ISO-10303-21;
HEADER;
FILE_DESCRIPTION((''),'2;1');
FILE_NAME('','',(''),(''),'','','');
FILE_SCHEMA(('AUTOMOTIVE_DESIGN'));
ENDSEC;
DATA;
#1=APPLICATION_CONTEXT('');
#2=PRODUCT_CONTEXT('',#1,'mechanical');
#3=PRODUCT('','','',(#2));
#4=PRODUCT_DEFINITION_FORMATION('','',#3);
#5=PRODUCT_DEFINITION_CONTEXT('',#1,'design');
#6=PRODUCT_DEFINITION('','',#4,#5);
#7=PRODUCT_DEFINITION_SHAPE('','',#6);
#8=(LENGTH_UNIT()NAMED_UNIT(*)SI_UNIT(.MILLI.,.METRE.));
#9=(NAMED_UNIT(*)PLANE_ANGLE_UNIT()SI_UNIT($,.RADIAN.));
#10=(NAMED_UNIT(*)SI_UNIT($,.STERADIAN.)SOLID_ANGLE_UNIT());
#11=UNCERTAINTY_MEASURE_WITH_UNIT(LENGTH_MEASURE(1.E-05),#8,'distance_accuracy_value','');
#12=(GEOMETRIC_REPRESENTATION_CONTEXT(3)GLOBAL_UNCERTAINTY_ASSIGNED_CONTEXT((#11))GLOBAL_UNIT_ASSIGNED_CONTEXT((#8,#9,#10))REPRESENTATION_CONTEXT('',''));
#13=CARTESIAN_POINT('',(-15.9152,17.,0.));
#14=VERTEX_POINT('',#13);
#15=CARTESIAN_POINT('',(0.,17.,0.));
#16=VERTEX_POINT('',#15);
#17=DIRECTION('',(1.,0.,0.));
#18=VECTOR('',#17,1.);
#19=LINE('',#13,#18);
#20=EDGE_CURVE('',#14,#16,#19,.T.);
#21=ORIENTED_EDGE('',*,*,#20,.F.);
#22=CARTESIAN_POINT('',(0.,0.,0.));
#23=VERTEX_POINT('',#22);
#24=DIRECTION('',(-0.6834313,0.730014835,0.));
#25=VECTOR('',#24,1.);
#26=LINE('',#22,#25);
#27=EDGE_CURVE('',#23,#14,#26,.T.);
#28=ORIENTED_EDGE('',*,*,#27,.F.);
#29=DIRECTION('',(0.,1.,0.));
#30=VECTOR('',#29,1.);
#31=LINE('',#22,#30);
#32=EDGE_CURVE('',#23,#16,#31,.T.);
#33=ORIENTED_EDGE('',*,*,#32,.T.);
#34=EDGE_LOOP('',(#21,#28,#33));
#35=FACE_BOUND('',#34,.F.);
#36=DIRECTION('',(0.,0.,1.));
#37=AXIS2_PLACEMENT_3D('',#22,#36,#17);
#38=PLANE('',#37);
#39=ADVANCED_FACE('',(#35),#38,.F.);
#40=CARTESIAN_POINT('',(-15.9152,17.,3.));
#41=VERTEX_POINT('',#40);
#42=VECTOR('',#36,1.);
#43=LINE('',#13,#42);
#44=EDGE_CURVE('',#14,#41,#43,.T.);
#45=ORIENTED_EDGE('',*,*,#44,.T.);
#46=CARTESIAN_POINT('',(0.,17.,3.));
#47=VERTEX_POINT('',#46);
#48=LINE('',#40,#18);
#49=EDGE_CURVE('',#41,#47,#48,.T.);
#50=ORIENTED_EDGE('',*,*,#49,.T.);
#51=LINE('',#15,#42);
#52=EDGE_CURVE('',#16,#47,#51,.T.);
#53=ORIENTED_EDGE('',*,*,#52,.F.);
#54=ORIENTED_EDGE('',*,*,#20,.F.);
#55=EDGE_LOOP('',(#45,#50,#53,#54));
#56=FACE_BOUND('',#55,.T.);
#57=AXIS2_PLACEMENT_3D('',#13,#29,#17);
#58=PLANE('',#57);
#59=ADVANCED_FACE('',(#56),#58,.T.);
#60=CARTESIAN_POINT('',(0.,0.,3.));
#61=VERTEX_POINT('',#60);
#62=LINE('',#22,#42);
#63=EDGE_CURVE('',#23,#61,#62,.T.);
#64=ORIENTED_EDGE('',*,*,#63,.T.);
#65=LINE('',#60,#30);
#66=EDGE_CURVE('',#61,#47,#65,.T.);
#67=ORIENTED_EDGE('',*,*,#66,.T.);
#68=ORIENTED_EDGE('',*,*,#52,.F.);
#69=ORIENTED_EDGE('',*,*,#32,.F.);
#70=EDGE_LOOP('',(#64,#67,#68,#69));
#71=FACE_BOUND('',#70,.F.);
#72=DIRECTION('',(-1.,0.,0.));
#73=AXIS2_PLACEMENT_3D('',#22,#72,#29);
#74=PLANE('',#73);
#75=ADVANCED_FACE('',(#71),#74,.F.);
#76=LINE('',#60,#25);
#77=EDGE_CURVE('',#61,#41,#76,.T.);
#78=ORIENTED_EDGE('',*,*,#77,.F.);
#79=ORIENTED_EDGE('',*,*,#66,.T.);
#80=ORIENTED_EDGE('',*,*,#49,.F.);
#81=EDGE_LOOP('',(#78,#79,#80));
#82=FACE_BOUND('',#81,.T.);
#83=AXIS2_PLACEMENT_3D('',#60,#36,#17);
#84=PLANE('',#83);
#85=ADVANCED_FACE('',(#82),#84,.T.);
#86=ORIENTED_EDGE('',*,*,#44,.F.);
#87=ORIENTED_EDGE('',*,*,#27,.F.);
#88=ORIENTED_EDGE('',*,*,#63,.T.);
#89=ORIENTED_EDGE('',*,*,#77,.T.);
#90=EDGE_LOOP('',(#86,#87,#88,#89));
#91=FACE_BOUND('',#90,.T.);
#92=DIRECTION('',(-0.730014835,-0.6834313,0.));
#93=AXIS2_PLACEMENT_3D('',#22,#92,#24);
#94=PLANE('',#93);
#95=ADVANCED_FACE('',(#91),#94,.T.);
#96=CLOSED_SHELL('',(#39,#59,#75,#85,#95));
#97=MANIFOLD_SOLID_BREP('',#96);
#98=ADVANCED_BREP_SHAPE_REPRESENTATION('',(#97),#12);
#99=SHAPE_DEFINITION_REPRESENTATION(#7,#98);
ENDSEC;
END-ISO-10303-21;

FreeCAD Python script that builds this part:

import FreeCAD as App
import Part
import Sketcher

doc = App.newDocument("Part")
body = doc.addObject("PartDesign::Body", "Body")

sketch1 = body.newObject("Sketcher::SketchObject", "Sketch")
sketch1.AttachmentSupport = (doc.getObject("XY_Plane"), [""])
sketch1.MapMode = "FlatFace"
sketch1.addGeometry(Part.LineSegment(App.Vector(0, 17, 0), App.Vector(-16, 17, 0)), False)
sketch1.addGeometry(Part.LineSegment(App.Vector(-16, 17, 0), App.Vector(0, 0, 0)), False)
sketch1.addGeometry(Part.LineSegment(App.Vector(0, 0, 0), App.Vector(0, 17, 0)), False)
sketch1.addConstraint(Sketcher.Constraint("Coincident", 0, 2, 1, 1))
sketch1.addConstraint(Sketcher.Constraint("Coincident", 1, 2, 2, 1))
sketch1.addConstraint(Sketcher.Constraint("Coincident", 2, 2, 0, 1))
sketch1.addConstraint(Sketcher.Constraint("Horizontal", 0))
sketch1.addConstraint(Sketcher.Constraint("Vertical", 2))
sketch1.addConstraint(Sketcher.Constraint("Coincident", 1, 2, -1, 1))
sketch1.addConstraint(Sketcher.Constraint("DistanceY", 2, 1, 2, 2, 17.0))
sketch1.addConstraint(Sketcher.Constraint("DistanceX", 0, 2, 0, 1, 15.9152))
pad1 = body.newObject("PartDesign::Pad", "Pad")
pad1.Profile = sketch1
pad1.Length = 3

doc.recompute()
